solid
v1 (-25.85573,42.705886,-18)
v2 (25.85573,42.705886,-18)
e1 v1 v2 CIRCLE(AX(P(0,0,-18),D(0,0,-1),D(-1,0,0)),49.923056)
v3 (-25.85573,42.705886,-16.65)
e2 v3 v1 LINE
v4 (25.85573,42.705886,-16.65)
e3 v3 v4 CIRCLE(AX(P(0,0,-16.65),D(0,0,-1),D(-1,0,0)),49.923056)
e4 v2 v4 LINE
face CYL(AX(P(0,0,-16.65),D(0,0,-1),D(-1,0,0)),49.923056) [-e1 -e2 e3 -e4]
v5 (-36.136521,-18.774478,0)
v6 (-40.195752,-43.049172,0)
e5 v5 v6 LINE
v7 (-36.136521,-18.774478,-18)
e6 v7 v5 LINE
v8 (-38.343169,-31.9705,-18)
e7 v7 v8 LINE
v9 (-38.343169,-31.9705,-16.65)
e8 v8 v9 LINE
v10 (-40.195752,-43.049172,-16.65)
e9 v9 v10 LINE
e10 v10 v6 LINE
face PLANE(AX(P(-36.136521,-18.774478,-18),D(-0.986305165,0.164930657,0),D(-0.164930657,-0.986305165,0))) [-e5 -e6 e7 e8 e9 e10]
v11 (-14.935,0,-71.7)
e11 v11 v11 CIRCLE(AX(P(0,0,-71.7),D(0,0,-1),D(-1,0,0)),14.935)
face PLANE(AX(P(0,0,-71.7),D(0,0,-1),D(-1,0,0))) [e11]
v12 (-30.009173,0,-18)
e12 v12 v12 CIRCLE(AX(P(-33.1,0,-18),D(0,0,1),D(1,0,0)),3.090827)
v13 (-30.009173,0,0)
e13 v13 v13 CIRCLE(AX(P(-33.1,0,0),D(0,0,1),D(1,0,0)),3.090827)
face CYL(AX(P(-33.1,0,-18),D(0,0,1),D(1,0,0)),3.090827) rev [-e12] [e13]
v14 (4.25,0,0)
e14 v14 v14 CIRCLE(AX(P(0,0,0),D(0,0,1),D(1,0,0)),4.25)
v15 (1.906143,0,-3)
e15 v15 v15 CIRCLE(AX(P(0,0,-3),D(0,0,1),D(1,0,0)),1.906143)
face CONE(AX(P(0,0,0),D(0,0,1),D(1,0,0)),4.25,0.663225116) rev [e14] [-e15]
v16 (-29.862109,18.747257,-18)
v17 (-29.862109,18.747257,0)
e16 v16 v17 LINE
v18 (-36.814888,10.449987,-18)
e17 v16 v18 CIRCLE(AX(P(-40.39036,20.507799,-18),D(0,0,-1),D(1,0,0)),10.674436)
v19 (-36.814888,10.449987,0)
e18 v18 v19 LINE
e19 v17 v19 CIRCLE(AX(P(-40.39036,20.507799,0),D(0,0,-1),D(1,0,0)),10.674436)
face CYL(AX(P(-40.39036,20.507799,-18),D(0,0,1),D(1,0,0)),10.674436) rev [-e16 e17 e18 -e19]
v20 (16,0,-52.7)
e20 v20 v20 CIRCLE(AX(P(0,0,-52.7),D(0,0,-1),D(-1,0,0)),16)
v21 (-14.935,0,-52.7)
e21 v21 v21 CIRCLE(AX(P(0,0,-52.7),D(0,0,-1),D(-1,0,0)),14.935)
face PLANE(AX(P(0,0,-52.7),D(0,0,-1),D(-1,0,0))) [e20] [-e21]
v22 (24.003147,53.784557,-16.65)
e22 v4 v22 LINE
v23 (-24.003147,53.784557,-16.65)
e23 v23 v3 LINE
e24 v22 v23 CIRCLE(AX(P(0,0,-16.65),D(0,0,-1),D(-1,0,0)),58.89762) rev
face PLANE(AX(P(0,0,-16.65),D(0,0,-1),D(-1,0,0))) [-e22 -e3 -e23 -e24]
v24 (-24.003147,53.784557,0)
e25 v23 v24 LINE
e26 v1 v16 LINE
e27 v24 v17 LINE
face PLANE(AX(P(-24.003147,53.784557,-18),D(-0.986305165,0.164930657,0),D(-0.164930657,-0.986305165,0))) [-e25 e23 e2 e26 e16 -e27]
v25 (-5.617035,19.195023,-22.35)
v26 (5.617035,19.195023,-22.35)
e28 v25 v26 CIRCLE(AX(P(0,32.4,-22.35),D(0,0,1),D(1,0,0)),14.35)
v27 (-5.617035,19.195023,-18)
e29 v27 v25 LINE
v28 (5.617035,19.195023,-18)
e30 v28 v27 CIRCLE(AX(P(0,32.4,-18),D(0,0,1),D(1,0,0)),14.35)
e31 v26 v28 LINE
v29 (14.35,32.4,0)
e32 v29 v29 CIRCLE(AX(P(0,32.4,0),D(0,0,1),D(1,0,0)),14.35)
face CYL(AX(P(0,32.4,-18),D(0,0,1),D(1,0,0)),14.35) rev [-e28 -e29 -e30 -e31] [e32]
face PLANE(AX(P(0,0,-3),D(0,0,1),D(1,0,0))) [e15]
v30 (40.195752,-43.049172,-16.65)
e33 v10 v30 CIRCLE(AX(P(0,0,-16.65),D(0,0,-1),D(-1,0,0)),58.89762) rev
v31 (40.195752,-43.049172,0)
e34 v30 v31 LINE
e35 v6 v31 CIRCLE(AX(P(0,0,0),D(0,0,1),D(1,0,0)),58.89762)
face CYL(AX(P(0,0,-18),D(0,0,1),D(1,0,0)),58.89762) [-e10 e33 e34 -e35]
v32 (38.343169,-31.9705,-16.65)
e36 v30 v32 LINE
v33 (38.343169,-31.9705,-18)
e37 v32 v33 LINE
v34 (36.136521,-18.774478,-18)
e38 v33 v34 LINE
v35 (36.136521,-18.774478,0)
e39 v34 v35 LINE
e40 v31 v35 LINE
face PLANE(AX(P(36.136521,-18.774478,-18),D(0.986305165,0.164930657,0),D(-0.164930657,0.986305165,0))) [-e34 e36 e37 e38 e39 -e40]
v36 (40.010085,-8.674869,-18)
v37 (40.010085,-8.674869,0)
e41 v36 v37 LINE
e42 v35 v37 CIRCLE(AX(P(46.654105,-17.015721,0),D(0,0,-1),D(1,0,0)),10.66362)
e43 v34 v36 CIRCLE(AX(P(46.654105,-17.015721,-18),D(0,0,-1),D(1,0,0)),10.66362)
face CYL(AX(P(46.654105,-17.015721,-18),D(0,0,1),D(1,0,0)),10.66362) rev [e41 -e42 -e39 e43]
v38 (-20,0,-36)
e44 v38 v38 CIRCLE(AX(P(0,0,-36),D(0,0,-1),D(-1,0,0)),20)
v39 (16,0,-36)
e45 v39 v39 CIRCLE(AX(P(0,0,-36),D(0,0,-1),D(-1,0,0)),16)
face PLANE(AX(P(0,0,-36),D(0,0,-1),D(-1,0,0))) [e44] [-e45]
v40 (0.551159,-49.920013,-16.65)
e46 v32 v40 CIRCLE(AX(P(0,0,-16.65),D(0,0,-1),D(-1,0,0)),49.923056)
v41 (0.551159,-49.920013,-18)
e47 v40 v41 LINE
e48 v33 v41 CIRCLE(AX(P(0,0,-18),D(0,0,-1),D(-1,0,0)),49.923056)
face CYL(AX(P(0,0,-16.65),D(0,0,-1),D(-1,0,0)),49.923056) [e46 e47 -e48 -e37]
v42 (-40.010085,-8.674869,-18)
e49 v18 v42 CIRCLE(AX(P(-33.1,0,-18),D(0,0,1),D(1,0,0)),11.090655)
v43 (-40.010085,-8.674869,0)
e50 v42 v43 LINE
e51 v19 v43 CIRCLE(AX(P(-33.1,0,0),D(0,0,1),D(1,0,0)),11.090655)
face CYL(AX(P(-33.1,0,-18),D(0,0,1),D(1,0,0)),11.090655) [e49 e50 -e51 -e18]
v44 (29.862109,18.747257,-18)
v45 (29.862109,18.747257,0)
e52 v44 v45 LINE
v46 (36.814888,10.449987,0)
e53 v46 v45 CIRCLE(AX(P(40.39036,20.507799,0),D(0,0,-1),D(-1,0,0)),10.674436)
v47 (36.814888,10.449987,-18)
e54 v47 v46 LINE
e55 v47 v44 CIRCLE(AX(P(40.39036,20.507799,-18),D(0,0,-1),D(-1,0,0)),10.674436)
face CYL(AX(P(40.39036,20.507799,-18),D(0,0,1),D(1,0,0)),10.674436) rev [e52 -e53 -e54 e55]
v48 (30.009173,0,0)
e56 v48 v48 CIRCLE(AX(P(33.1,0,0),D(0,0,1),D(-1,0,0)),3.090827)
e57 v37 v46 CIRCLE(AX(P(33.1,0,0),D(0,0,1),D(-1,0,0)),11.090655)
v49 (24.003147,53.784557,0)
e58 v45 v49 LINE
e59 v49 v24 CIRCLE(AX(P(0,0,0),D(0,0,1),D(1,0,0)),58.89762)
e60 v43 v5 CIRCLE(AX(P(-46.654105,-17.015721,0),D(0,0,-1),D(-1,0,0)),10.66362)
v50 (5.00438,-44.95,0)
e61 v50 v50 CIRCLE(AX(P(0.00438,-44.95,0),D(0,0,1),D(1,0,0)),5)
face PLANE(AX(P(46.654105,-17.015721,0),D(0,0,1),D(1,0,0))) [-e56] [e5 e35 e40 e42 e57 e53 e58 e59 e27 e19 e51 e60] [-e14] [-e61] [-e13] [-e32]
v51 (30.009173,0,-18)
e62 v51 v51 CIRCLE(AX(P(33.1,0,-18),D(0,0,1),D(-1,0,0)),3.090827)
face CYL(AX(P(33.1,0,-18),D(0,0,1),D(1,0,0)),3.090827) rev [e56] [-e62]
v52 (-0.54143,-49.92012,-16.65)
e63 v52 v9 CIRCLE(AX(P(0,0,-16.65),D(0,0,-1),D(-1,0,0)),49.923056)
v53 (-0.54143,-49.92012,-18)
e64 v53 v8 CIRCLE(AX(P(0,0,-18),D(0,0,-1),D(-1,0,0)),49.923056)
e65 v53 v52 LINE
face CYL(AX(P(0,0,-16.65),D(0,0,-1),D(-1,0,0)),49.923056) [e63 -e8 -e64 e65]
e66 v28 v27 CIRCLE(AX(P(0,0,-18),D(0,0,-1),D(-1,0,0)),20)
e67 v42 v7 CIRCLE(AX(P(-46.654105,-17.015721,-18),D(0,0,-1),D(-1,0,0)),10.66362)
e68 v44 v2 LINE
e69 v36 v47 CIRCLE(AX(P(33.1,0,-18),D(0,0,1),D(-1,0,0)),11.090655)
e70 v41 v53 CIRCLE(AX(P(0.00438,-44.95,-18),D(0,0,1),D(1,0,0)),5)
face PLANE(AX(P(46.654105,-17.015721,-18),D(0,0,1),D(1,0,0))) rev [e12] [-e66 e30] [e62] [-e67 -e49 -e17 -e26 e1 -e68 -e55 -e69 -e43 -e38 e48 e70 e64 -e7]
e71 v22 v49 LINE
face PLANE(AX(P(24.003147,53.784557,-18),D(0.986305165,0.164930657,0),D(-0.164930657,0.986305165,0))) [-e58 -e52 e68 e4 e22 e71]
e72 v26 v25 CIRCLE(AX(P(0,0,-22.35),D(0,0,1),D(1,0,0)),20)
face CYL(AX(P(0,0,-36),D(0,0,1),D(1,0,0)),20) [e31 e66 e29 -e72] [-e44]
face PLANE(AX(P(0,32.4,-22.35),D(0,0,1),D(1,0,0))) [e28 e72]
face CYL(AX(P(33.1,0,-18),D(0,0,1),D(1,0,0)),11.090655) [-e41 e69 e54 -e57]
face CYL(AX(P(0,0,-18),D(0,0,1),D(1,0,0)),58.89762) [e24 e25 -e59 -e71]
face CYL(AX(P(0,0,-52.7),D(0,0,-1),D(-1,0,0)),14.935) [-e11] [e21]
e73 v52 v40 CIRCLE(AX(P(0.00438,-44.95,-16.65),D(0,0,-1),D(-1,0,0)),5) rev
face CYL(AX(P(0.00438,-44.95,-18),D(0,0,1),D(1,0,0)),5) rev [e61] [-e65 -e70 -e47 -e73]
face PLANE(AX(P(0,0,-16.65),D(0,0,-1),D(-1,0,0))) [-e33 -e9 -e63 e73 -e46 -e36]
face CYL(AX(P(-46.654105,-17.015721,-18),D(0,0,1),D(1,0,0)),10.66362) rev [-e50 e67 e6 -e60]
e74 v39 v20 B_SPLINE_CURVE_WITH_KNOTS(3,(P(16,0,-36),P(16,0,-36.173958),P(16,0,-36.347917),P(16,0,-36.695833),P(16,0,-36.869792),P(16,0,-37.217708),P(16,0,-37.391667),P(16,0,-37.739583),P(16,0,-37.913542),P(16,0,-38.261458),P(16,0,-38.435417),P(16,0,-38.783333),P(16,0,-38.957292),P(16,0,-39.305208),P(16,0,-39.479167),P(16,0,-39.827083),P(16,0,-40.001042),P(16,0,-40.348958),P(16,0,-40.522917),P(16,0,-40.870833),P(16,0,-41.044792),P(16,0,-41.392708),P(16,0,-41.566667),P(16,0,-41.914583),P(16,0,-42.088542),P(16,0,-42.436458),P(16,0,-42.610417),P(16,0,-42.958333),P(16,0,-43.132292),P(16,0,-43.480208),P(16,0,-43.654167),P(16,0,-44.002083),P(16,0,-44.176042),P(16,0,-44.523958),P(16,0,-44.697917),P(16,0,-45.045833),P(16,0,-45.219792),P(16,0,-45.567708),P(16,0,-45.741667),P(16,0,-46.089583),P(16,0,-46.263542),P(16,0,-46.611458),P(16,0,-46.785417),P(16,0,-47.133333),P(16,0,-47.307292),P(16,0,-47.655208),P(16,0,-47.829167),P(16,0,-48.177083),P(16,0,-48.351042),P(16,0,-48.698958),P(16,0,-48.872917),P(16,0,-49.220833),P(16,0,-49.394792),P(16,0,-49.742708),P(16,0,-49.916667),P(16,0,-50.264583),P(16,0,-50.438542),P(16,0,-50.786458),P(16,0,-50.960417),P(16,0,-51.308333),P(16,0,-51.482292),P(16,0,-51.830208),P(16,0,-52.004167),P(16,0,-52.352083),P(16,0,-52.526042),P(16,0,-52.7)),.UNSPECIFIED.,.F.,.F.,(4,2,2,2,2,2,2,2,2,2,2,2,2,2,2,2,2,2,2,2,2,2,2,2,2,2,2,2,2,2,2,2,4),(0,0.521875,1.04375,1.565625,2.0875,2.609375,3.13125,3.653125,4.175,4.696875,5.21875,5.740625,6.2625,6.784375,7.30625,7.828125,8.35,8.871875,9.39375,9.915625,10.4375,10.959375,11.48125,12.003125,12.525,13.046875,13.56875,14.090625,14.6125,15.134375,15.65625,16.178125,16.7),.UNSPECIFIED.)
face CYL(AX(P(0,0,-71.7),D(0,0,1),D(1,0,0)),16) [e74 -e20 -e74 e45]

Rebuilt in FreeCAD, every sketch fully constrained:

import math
import FreeCAD as App
import Part
import Sketcher


def faces_at(feature, points):
    """Names of the faces that lie closest to the given points."""
    faces = feature.Shape.Faces
    near = lambda p: min(range(len(faces)), key=lambda i: faces[i].distToShape(Part.Vertex(*p))[0])
    return sorted({f"Face{near(p) + 1}" for p in points})


def add_polygon(sketch, points):
    """Adds a closed chain of lines whose ends are joined by coincident constraints."""
    first, n = sketch.GeometryCount, len(points)
    for a, b in zip(points, points[1:] + points[:1]):
        sketch.addGeometry(Part.LineSegment(App.Vector(*a, 0), App.Vector(*b, 0)), False)
    for i in range(n):
        sketch.addConstraint(Sketcher.Constraint("Coincident", first + i, 2, first + (i + 1) % n, 1))

doc = App.newDocument("Part")
params = doc.addObject("Spreadsheet::Sheet", "Params")
for row, (alias, value) in enumerate([
    ("sketch1_diameter", "10 mm"),
    ("sketch1_diameter2", "28.7 mm"),
    ("pad1_length", "18 mm"),
    ("sketch2_diameter", "40 mm"),
    ("pad2_length", "18 mm"),
    ("sketch3_diameter", "32 mm"),
    ("pad3_length", "35.7 mm"),
    ("sketch4_diameter", "29.87 mm"),
    ("sketch4_width", "123.14 mm"),
    ("pocket1_length", "19 mm"),
    ("sketch5_diameter", "28.7 mm"),
    ("pocket2_length", "22.35 mm"),
    ("sketch6_diameter", "8.5 mm"),
    ("pad4_length", "3 mm"),
    ("draft_angle", "38 deg"),
    ("sketch7_width", "123.14 mm"),
    ("pocket3_length", "1.35 mm"),
], start=1):
    params.set(f"A{row}", alias)
    params.set(f"B{row}", "=" + value)
    params.setAlias(f"B{row}", alias)

body = doc.addObject("PartDesign::Body", "Body")

# Sketch on XY plane
sketch1 = doc.addObject("Sketcher::SketchObject", "Sketch")
body.addObject(sketch1)
sketch1.AttachmentSupport = (doc.XY_Plane, [""])
sketch1.MapMode = "FlatFace"
sketch1.addGeometry(Part.LineSegment(App.Vector(40.2, -43, 0), App.Vector(36.1, -18.8, 0)), False)
sketch1.addGeometry(Part.ArcOfCircle(Part.Circle(App.Vector(46.7, -17, 0), App.Vector(0, 0, 1), 10.7), math.radians(129), math.radians(189)), False)
sketch1.addGeometry(Part.ArcOfCircle(Part.Circle(App.Vector(33.1, 0, 0), App.Vector(0, 0, 1), 11.1), math.radians(-51), math.radians(70)), False)
sketch1.addGeometry(Part.ArcOfCircle(Part.Circle(App.Vector(40.4, 20.5, 0), App.Vector(0, 0, 1), 10.7), math.radians(-171), math.radians(-110)), False)
sketch1.addGeometry(Part.LineSegment(App.Vector(29.9, 18.7, 0), App.Vector(24, 53.8, 0)), False)
sketch1.addGeometry(Part.ArcOfCircle(Part.Circle(App.Vector(0, 0, 0), App.Vector(0, 0, 1), 58.9), math.radians(66), math.radians(114)), False)
sketch1.addGeometry(Part.LineSegment(App.Vector(-24, 53.8, 0), App.Vector(-29.9, 18.7, 0)), False)
sketch1.addGeometry(Part.ArcOfCircle(Part.Circle(App.Vector(-40.4, 20.5, 0), App.Vector(0, 0, 1), 10.7), math.radians(-70), math.radians(-9)), False)
sketch1.addGeometry(Part.ArcOfCircle(Part.Circle(App.Vector(-33.1, 0, 0), App.Vector(0, 0, 1), 11.1), math.radians(110), math.radians(231)), False)
sketch1.addGeometry(Part.ArcOfCircle(Part.Circle(App.Vector(-46.7, -17, 0), App.Vector(0, 0, 1), 10.7), math.radians(-9), math.radians(51)), False)
sketch1.addGeometry(Part.LineSegment(App.Vector(-36.1, -18.8, 0), App.Vector(-40.2, -43, 0)), False)
sketch1.addGeometry(Part.ArcOfCircle(Part.Circle(App.Vector(0, 0, 0), App.Vector(0, 0, 1), 58.9), math.radians(-133), math.radians(-47)), False)
sketch1.addGeometry(Part.Circle(App.Vector(0, -44.9, 0), App.Vector(0, 0, 1), 5), False)
sketch1.addGeometry(Part.Circle(App.Vector(33.1, 0, 0), App.Vector(0, 0, 1), 3.1), False)
sketch1.addGeometry(Part.Circle(App.Vector(-33.1, 0, 0), App.Vector(0, 0, 1), 3.1), False)
sketch1.addGeometry(Part.Circle(App.Vector(0, 32.4, 0), App.Vector(0, 0, 1), 14.3), False)
sketch1.addConstraint(Sketcher.Constraint("Tangent", 0, 2, 1, 2))
sketch1.addConstraint(Sketcher.Constraint("Tangent", 1, 1, 2, 1))
sketch1.addConstraint(Sketcher.Constraint("Tangent", 2, 2, 3, 2))
sketch1.addConstraint(Sketcher.Constraint("Tangent", 3, 1, 4, 1))
sketch1.addConstraint(Sketcher.Constraint("Coincident", 4, 2, 5, 1))
sketch1.addConstraint(Sketcher.Constraint("Coincident", 5, 2, 6, 1))
sketch1.addConstraint(Sketcher.Constraint("Tangent", 6, 2, 7, 2))
sketch1.addConstraint(Sketcher.Constraint("Tangent", 7, 1, 8, 1))
sketch1.addConstraint(Sketcher.Constraint("Tangent", 8, 2, 9, 2))
sketch1.addConstraint(Sketcher.Constraint("Tangent", 9, 1, 10, 1))
sketch1.addConstraint(Sketcher.Constraint("Coincident", 10, 2, 11, 1))
sketch1.addConstraint(Sketcher.Constraint("Coincident", 11, 2, 0, 1))
sketch1.addConstraint(Sketcher.Constraint("Coincident", 5, 3, -1, 1))
sketch1.addConstraint(Sketcher.Constraint("Coincident", 11, 3, -1, 1))
sketch1.addConstraint(Sketcher.Constraint("Coincident", 13, 3, 2, 3))
sketch1.addConstraint(Sketcher.Constraint("Coincident", 14, 3, 8, 3))
sketch1.addConstraint(Sketcher.Constraint("Equal", 3, 7))
sketch1.addConstraint(Sketcher.Constraint("Equal", 2, 8))
sketch1.addConstraint(Sketcher.Constraint("Equal", 1, 9))
sketch1.addConstraint(Sketcher.Constraint("Equal", 5, 11))
sketch1.addConstraint(Sketcher.Constraint("Equal", 13, 14))
sketch1.addConstraint(Sketcher.Constraint("Symmetric", 2, 3, 8, 3, -1, 1))
sketch1.addConstraint(Sketcher.Constraint("Symmetric", 3, 3, 7, 3, -2))
sketch1.addConstraint(Sketcher.Constraint("Symmetric", 0, 2, 9, 1, -2))
sketch1.addConstraint(Sketcher.Constraint("PointOnObject", 15, 3, -2))
sketch1.addConstraint(Sketcher.Constraint("Parallel", 0, 4))
sketch1.addConstraint(Sketcher.Constraint("Parallel", 6, 10))
sketch1.addConstraint(Sketcher.Constraint("Diameter", 12, 10.0))
sketch1.addConstraint(Sketcher.Constraint("Diameter", 15, 28.7))
sketch1.addConstraint(Sketcher.Constraint("DistanceX", -1, 1, 2, 3, 33.1))
sketch1.addConstraint(Sketcher.Constraint("DistanceY", -1, 1, 15, 3, 32.4))
sketch1.addConstraint(Sketcher.Constraint("DistanceY", 12, 3, -1, 1, 44.95))
sketch1.addConstraint(Sketcher.Constraint("Radius", 1, 10.66362))
sketch1.addConstraint(Sketcher.Constraint("Radius", 5, 58.89762))
sketch1.addConstraint(Sketcher.Constraint("Diameter", 13, 6.181653))
sketch1.addConstraint(Sketcher.Constraint("Radius", 2, 11.090655))
sketch1.addConstraint(Sketcher.Constraint("Radius", 3, 10.674436))
sketch1.addConstraint(Sketcher.Constraint("DistanceY", -1, 1, 3, 3, 20.507799))
sketch1.addConstraint(Sketcher.Constraint("DistanceY", 3, 1, 4, 2, 35.0373))
sketch1.addConstraint(Sketcher.Constraint("DistanceY", 1, 3, -1, 1, 17.015721))
sketch1.addConstraint(Sketcher.Constraint("DistanceX", -1, 1, 12, 3, 0.00438))
sketch1.setExpression("Constraints[27]", "Params.sketch1_diameter")
sketch1.setExpression("Constraints[28]", "Params.sketch1_diameter2")
pad1 = doc.addObject("PartDesign::Pad", "Pad")
body.addObject(pad1)
pad1.Profile = sketch1
pad1.setExpression("Length", "Params.pad1_length")
pad1.Reversed = True

# Sketch on XY plane
sketch2 = doc.addObject("Sketcher::SketchObject", "Sketch001")
body.addObject(sketch2)
sketch2.AttachmentSupport = (doc.XY_Plane, [""])
sketch2.MapMode = "FlatFace"
sketch2.AttachmentOffset = App.Placement(App.Vector(0, 0, -18), App.Rotation())
sketch2.addGeometry(Part.Circle(App.Vector(0, 0, 0), App.Vector(0, 0, 1), 20), False)
sketch2.addConstraint(Sketcher.Constraint("Coincident", 0, 3, -1, 1))
sketch2.addConstraint(Sketcher.Constraint("Diameter", 0, 40.0))
sketch2.setExpression("Constraints[1]", "Params.sketch2_diameter")
pad2 = doc.addObject("PartDesign::Pad", "Pad001")
body.addObject(pad2)
pad2.Profile = sketch2
pad2.setExpression("Length", "Params.pad2_length")
pad2.Reversed = True

# Sketch on XY plane
sketch3 = doc.addObject("Sketcher::SketchObject", "Sketch002")
body.addObject(sketch3)
sketch3.AttachmentSupport = (doc.XY_Plane, [""])
sketch3.MapMode = "FlatFace"
sketch3.AttachmentOffset = App.Placement(App.Vector(0, 0, -36), App.Rotation())
sketch3.addGeometry(Part.Circle(App.Vector(0, 0, 0), App.Vector(0, 0, 1), 16), False)
sketch3.addConstraint(Sketcher.Constraint("Coincident", 0, 3, -1, 1))
sketch3.addConstraint(Sketcher.Constraint("Diameter", 0, 32.0))
sketch3.setExpression("Constraints[1]", "Params.sketch3_diameter")
pad3 = doc.addObject("PartDesign::Pad", "Pad002")
body.addObject(pad3)
pad3.Profile = sketch3
pad3.setExpression("Length", "Params.pad3_length")
pad3.Reversed = True

# Sketch on XY plane
sketch4 = doc.addObject("Sketcher::SketchObject", "Sketch003")
body.addObject(sketch4)
sketch4.AttachmentSupport = (doc.XY_Plane, [""])
sketch4.MapMode = "FlatFace"
sketch4.AttachmentOffset = App.Placement(App.Vector(0, 0, -71.7), App.Rotation())
add_polygon(sketch4, [(62, 76), (62, -76), (-62, -76), (-62, 76)])  # lines 0-3
sketch4.addGeometry(Part.Circle(App.Vector(0, 0, 0), App.Vector(0, 0, 1), 15), False)  # 4
sketch4.addConstraint(Sketcher.Constraint("Vertical", 0))
sketch4.addConstraint(Sketcher.Constraint("Horizontal", 1))
sketch4.addConstraint(Sketcher.Constraint("Vertical", 2))
sketch4.addConstraint(Sketcher.Constraint("Horizontal", 3))
sketch4.addConstraint(Sketcher.Constraint("Coincident", 4, 3, -1, 1))
sketch4.addConstraint(Sketcher.Constraint("Symmetric", 0, 2, 2, 2, -1, 1))
sketch4.addConstraint(Sketcher.Constraint("Diameter", 4, 29.87))
sketch4.addConstraint(Sketcher.Constraint("DistanceX", 1, 2, 1, 1, 123.14))
sketch4.addConstraint(Sketcher.Constraint("DistanceY", 0, 2, 0, 1, 152.554))
sketch4.setExpression("Constraints[10]", "Params.sketch4_diameter")
sketch4.setExpression("Constraints[11]", "Params.sketch4_width")
pocket1 = doc.addObject("PartDesign::Pocket", "Pocket")
body.addObject(pocket1)
pocket1.Profile = sketch4
pocket1.setExpression("Length", "Params.pocket1_length")
pocket1.Reversed = True

# Sketch on XY plane
sketch5 = doc.addObject("Sketcher::SketchObject", "Sketch004")
body.addObject(sketch5)
sketch5.AttachmentSupport = (doc.XY_Plane, [""])
sketch5.MapMode = "FlatFace"
sketch5.addGeometry(Part.Circle(App.Vector(0, 32, 0), App.Vector(0, 0, 1), 14), False)
sketch5.addConstraint(Sketcher.Constraint("PointOnObject", 0, 3, -2))
sketch5.addConstraint(Sketcher.Constraint("Diameter", 0, 28.7))
sketch5.addConstraint(Sketcher.Constraint("DistanceY", -1, 1, 0, 3, 32.4))
sketch5.setExpression("Constraints[1]", "Params.sketch5_diameter")
pocket2 = doc.addObject("PartDesign::Pocket", "Pocket001")
body.addObject(pocket2)
pocket2.Profile = sketch5
pocket2.setExpression("Length", "Params.pocket2_length")
body2 = doc.addObject("PartDesign::Body", "Body001")

# Sketch on XY plane
sketch6 = doc.addObject("Sketcher::SketchObject", "Sketch005")
body2.addObject(sketch6)
sketch6.AttachmentSupport = (doc.getObject("XY_Plane001"), [""])
sketch6.MapMode = "FlatFace"
sketch6.addGeometry(Part.Circle(App.Vector(0, 0, 0), App.Vector(0, 0, 1), 4.2), False)
sketch6.addConstraint(Sketcher.Constraint("Coincident", 0, 3, -1, 1))
sketch6.addConstraint(Sketcher.Constraint("Diameter", 0, 8.5))
sketch6.setExpression("Constraints[1]", "Params.sketch6_diameter")
pad4 = doc.addObject("PartDesign::Pad", "Pad003")
body2.addObject(pad4)
pad4.Profile = sketch6
pad4.setExpression("Length", "Params.pad4_length")
pad4.Reversed = True
doc.recompute()

draft = doc.addObject("PartDesign::Draft", "Draft")
body2.addObject(draft)
draft.Base = (pad4, faces_at(pad4, [(-4.25, 0, -1.5)]))
draft.NeutralPlane = (doc.getObject("XY_Plane001"), [""])
draft.setExpression("Angle", "Params.draft_angle")
draft.Reversed = True
doc.recompute()

boolean = doc.addObject("PartDesign::Boolean", "Boolean")
body.addObject(boolean)
boolean.Type = "Cut"
boolean.addObjects([body2])

# Sketch on XY plane
sketch7 = doc.addObject("Sketcher::SketchObject", "Sketch006")
body.addObject(sketch7)
sketch7.AttachmentSupport = (doc.XY_Plane, [""])
sketch7.MapMode = "FlatFace"
sketch7.AttachmentOffset = App.Placement(App.Vector(0, 0, -18), App.Rotation())
add_polygon(sketch7, [(62, 76), (62, -76), (-62, -76), (-62, 76)])  # lines 0-3
sketch7.addGeometry(Part.Circle(App.Vector(0, 0, 0), App.Vector(0, 0, 1), 50), False)  # 4
sketch7.addConstraint(Sketcher.Constraint("Vertical", 0))
sketch7.addConstraint(Sketcher.Constraint("Horizontal", 1))
sketch7.addConstraint(Sketcher.Constraint("Vertical", 2))
sketch7.addConstraint(Sketcher.Constraint("Horizontal", 3))
sketch7.addConstraint(Sketcher.Constraint("Coincident", 4, 3, -1, 1))
sketch7.addConstraint(Sketcher.Constraint("Symmetric", 0, 2, 2, 2, -1, 1))
sketch7.addConstraint(Sketcher.Constraint("DistanceX", 1, 2, 1, 1, 123.14))
sketch7.addConstraint(Sketcher.Constraint("Diameter", 4, 99.846111))
sketch7.addConstraint(Sketcher.Constraint("DistanceY", 0, 2, 0, 1, 152.554))
sketch7.setExpression("Constraints[10]", "Params.sketch7_width")
pocket3 = doc.addObject("PartDesign::Pocket", "Pocket002")
body.addObject(pocket3)
pocket3.Profile = sketch7
pocket3.setExpression("Length", "Params.pocket3_length")
pocket3.Reversed = True

doc.recompute()
